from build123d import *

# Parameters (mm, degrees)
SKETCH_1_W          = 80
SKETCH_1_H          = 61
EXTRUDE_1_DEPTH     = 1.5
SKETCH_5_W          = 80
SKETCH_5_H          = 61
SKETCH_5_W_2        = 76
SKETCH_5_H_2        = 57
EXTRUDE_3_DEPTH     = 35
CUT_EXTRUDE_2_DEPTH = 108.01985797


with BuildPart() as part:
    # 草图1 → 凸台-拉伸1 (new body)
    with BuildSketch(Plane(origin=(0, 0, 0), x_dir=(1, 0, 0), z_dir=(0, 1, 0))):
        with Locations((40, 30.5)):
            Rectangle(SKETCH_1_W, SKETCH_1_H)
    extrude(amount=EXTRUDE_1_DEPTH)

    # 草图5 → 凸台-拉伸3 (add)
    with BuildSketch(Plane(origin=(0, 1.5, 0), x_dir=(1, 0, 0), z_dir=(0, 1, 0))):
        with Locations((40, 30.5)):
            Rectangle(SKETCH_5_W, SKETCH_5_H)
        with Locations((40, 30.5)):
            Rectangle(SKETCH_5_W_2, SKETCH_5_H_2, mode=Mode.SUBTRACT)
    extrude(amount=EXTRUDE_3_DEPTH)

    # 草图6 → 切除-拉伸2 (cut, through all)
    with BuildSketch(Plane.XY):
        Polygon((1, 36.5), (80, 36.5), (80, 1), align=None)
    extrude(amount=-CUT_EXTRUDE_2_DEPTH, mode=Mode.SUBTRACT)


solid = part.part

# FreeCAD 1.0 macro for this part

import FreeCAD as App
import Part
import Sketcher

V = App.Vector
Q = App.Units.Quantity

doc = App.newDocument("Part")
params = doc.addObject("Spreadsheet::Sheet", "Params")
for row, (alias, value) in enumerate([
    ("sketch1_width", "80 mm"),
    ("sketch1_height", "61 mm"),
    ("pad1_length", "1.5 mm"),
    ("sketch2_width", "80 mm"),
    ("sketch2_width2", "76 mm"),
    ("sketch2_height", "61 mm"),
    ("sketch2_height2", "57 mm"),
    ("pad2_length", "35 mm"),
    ("sketch3_width", "79 mm"),
    ("sketch3_height", "35.5 mm"),
], start=1):
    params.set(f"A{row}", alias)
    params.set(f"B{row}", "=" + value)
    params.setAlias(f"B{row}", alias)

body = doc.addObject("PartDesign::Body", "Body")

# Sketch on XZ plane
sketch1 = body.newObject("Sketcher::SketchObject", "Sketch")
sketch1.AttachmentSupport = (doc.getObject("XZ_Plane"), [""])
sketch1.MapMode = "FlatFace"
sketch1.addGeometry([
    Part.LineSegment(V(0, -61, 0), V(0, 0, 0)),
    Part.LineSegment(V(0, 0, 0), V(80, 0, 0)),
    Part.LineSegment(V(80, 0, 0), V(80, -61, 0)),
    Part.LineSegment(V(80, -61, 0), V(0, -61, 0)),
], False)
sketch1.addConstraint([
    Sketcher.Constraint("Coincident", 0, 2, 1, 1),
    Sketcher.Constraint("Coincident", 1, 2, 2, 1),
    Sketcher.Constraint("Coincident", 2, 2, 3, 1),
    Sketcher.Constraint("Coincident", 3, 2, 0, 1),
    Sketcher.Constraint("Vertical", 0),
    Sketcher.Constraint("Horizontal", 1),
    Sketcher.Constraint("Vertical", 2),
    Sketcher.Constraint("Horizontal", 3),
    Sketcher.Constraint("Coincident", 0, 2, -1, 1),
    Sketcher.Constraint("DistanceX", 1, 1, 1, 2, Q("80 mm")),
    Sketcher.Constraint("DistanceY", 0, 1, 0, 2, Q("61 mm")),
])
sketch1.setExpression("Constraints[9]", "Params.sketch1_width")
sketch1.setExpression("Constraints[10]", "Params.sketch1_height")
pad1 = body.newObject("PartDesign::Pad", "Pad")
pad1.Profile = sketch1
pad1.setExpression("Length", "Params.pad1_length")
pad1.Reversed = True

# Sketch on XZ plane
sketch2 = body.newObject("Sketcher::SketchObject", "Sketch001")
sketch2.AttachmentSupport = (doc.getObject("XZ_Plane"), [""])
sketch2.MapMode = "FlatFace"
sketch2.AttachmentOffset = App.Placement(V(0, 0, -1.5), App.Rotation())
sketch2.addGeometry([
    Part.LineSegment(V(0, -61, 0), V(0, 0, 0)),  # 0
    Part.LineSegment(V(0, 0, 0), V(80, 0, 0)),  # 1
    Part.LineSegment(V(80, 0, 0), V(80, -61, 0)),  # 2
    Part.LineSegment(V(80, -61, 0), V(0, -61, 0)),  # 3
    Part.LineSegment(V(78, -2, 0), V(2, -2, 0)),  # 4
    Part.LineSegment(V(2, -2, 0), V(2, -59, 0)),  # 5
    Part.LineSegment(V(2, -59, 0), V(78, -59, 0)),  # 6
    Part.LineSegment(V(78, -59, 0), V(78, -2, 0)),  # 7
], False)
sketch2.addConstraint([
    Sketcher.Constraint("Coincident", 0, 2, 1, 1),
    Sketcher.Constraint("Coincident", 1, 2, 2, 1),
    Sketcher.Constraint("Coincident", 2, 2, 3, 1),
    Sketcher.Constraint("Coincident", 3, 2, 0, 1),
    Sketcher.Constraint("Coincident", 4, 2, 5, 1),
    Sketcher.Constraint("Coincident", 5, 2, 6, 1),
    Sketcher.Constraint("Coincident", 6, 2, 7, 1),
    Sketcher.Constraint("Coincident", 7, 2, 4, 1),
    Sketcher.Constraint("Vertical", 0),
    Sketcher.Constraint("Horizontal", 1),
    Sketcher.Constraint("Vertical", 2),
    Sketcher.Constraint("Horizontal", 3),
    Sketcher.Constraint("Horizontal", 4),
    Sketcher.Constraint("Vertical", 5),
    Sketcher.Constraint("Horizontal", 6),
    Sketcher.Constraint("Vertical", 7),
    Sketcher.Constraint("Coincident", 0, 2, -1, 1),
    Sketcher.Constraint("DistanceX", 1, 1, 1, 2, Q("80 mm")),
    Sketcher.Constraint("DistanceX", 4, 2, 4, 1, Q("76 mm")),
    Sketcher.Constraint("DistanceY", 0, 1, 0, 2, Q("61 mm")),
    Sketcher.Constraint("DistanceY", 5, 2, 5, 1, Q("57 mm")),
    Sketcher.Constraint("DistanceX", -1, 1, 4, 2, Q("2 mm")),
    Sketcher.Constraint("DistanceY", 4, 2, -1, 1, Q("2 mm")),
])
sketch2.setExpression("Constraints[17]", "Params.sketch2_width")
sketch2.setExpression("Constraints[18]", "Params.sketch2_width2")
sketch2.setExpression("Constraints[19]", "Params.sketch2_height")
sketch2.setExpression("Constraints[20]", "Params.sketch2_height2")
pad2 = body.newObject("PartDesign::Pad", "Pad001")
pad2.Profile = sketch2
pad2.setExpression("Length", "Params.pad2_length")
pad2.Reversed = True

# Sketch on XY plane
sketch3 = body.newObject("Sketcher::SketchObject", "Sketch002")
sketch3.AttachmentSupport = (doc.getObject("XY_Plane"), [""])
sketch3.MapMode = "FlatFace"
sketch3.addGeometry([
    Part.LineSegment(V(80, 36, 0), V(1, 36, 0)),
    Part.LineSegment(V(1, 36, 0), V(80, 1, 0)),
    Part.LineSegment(V(80, 1, 0), V(80, 36, 0)),
], False)
sketch3.addConstraint([
    Sketcher.Constraint("Coincident", 0, 2, 1, 1),
    Sketcher.Constraint("Coincident", 1, 2, 2, 1),
    Sketcher.Constraint("Coincident", 2, 2, 0, 1),
    Sketcher.Constraint("Horizontal", 0),
    Sketcher.Constraint("Vertical", 2),
    Sketcher.Constraint("DistanceX", 0, 2, 0, 1, Q("79 mm")),
    Sketcher.Constraint("DistanceY", 2, 1, 2, 2, Q("35.5 mm")),
    Sketcher.Constraint("DistanceX", -1, 1, 0, 2, Q("1 mm")),
    Sketcher.Constraint("DistanceY", -1, 1, 1, 2, Q("1 mm")),
])
sketch3.setExpression("Constraints[5]", "Params.sketch3_width")
sketch3.setExpression("Constraints[6]", "Params.sketch3_height")
pocket1 = body.newObject("PartDesign::Pocket", "Pocket")
pocket1.Profile = sketch3
pocket1.Type = "ThroughAll"

doc.recompute()
